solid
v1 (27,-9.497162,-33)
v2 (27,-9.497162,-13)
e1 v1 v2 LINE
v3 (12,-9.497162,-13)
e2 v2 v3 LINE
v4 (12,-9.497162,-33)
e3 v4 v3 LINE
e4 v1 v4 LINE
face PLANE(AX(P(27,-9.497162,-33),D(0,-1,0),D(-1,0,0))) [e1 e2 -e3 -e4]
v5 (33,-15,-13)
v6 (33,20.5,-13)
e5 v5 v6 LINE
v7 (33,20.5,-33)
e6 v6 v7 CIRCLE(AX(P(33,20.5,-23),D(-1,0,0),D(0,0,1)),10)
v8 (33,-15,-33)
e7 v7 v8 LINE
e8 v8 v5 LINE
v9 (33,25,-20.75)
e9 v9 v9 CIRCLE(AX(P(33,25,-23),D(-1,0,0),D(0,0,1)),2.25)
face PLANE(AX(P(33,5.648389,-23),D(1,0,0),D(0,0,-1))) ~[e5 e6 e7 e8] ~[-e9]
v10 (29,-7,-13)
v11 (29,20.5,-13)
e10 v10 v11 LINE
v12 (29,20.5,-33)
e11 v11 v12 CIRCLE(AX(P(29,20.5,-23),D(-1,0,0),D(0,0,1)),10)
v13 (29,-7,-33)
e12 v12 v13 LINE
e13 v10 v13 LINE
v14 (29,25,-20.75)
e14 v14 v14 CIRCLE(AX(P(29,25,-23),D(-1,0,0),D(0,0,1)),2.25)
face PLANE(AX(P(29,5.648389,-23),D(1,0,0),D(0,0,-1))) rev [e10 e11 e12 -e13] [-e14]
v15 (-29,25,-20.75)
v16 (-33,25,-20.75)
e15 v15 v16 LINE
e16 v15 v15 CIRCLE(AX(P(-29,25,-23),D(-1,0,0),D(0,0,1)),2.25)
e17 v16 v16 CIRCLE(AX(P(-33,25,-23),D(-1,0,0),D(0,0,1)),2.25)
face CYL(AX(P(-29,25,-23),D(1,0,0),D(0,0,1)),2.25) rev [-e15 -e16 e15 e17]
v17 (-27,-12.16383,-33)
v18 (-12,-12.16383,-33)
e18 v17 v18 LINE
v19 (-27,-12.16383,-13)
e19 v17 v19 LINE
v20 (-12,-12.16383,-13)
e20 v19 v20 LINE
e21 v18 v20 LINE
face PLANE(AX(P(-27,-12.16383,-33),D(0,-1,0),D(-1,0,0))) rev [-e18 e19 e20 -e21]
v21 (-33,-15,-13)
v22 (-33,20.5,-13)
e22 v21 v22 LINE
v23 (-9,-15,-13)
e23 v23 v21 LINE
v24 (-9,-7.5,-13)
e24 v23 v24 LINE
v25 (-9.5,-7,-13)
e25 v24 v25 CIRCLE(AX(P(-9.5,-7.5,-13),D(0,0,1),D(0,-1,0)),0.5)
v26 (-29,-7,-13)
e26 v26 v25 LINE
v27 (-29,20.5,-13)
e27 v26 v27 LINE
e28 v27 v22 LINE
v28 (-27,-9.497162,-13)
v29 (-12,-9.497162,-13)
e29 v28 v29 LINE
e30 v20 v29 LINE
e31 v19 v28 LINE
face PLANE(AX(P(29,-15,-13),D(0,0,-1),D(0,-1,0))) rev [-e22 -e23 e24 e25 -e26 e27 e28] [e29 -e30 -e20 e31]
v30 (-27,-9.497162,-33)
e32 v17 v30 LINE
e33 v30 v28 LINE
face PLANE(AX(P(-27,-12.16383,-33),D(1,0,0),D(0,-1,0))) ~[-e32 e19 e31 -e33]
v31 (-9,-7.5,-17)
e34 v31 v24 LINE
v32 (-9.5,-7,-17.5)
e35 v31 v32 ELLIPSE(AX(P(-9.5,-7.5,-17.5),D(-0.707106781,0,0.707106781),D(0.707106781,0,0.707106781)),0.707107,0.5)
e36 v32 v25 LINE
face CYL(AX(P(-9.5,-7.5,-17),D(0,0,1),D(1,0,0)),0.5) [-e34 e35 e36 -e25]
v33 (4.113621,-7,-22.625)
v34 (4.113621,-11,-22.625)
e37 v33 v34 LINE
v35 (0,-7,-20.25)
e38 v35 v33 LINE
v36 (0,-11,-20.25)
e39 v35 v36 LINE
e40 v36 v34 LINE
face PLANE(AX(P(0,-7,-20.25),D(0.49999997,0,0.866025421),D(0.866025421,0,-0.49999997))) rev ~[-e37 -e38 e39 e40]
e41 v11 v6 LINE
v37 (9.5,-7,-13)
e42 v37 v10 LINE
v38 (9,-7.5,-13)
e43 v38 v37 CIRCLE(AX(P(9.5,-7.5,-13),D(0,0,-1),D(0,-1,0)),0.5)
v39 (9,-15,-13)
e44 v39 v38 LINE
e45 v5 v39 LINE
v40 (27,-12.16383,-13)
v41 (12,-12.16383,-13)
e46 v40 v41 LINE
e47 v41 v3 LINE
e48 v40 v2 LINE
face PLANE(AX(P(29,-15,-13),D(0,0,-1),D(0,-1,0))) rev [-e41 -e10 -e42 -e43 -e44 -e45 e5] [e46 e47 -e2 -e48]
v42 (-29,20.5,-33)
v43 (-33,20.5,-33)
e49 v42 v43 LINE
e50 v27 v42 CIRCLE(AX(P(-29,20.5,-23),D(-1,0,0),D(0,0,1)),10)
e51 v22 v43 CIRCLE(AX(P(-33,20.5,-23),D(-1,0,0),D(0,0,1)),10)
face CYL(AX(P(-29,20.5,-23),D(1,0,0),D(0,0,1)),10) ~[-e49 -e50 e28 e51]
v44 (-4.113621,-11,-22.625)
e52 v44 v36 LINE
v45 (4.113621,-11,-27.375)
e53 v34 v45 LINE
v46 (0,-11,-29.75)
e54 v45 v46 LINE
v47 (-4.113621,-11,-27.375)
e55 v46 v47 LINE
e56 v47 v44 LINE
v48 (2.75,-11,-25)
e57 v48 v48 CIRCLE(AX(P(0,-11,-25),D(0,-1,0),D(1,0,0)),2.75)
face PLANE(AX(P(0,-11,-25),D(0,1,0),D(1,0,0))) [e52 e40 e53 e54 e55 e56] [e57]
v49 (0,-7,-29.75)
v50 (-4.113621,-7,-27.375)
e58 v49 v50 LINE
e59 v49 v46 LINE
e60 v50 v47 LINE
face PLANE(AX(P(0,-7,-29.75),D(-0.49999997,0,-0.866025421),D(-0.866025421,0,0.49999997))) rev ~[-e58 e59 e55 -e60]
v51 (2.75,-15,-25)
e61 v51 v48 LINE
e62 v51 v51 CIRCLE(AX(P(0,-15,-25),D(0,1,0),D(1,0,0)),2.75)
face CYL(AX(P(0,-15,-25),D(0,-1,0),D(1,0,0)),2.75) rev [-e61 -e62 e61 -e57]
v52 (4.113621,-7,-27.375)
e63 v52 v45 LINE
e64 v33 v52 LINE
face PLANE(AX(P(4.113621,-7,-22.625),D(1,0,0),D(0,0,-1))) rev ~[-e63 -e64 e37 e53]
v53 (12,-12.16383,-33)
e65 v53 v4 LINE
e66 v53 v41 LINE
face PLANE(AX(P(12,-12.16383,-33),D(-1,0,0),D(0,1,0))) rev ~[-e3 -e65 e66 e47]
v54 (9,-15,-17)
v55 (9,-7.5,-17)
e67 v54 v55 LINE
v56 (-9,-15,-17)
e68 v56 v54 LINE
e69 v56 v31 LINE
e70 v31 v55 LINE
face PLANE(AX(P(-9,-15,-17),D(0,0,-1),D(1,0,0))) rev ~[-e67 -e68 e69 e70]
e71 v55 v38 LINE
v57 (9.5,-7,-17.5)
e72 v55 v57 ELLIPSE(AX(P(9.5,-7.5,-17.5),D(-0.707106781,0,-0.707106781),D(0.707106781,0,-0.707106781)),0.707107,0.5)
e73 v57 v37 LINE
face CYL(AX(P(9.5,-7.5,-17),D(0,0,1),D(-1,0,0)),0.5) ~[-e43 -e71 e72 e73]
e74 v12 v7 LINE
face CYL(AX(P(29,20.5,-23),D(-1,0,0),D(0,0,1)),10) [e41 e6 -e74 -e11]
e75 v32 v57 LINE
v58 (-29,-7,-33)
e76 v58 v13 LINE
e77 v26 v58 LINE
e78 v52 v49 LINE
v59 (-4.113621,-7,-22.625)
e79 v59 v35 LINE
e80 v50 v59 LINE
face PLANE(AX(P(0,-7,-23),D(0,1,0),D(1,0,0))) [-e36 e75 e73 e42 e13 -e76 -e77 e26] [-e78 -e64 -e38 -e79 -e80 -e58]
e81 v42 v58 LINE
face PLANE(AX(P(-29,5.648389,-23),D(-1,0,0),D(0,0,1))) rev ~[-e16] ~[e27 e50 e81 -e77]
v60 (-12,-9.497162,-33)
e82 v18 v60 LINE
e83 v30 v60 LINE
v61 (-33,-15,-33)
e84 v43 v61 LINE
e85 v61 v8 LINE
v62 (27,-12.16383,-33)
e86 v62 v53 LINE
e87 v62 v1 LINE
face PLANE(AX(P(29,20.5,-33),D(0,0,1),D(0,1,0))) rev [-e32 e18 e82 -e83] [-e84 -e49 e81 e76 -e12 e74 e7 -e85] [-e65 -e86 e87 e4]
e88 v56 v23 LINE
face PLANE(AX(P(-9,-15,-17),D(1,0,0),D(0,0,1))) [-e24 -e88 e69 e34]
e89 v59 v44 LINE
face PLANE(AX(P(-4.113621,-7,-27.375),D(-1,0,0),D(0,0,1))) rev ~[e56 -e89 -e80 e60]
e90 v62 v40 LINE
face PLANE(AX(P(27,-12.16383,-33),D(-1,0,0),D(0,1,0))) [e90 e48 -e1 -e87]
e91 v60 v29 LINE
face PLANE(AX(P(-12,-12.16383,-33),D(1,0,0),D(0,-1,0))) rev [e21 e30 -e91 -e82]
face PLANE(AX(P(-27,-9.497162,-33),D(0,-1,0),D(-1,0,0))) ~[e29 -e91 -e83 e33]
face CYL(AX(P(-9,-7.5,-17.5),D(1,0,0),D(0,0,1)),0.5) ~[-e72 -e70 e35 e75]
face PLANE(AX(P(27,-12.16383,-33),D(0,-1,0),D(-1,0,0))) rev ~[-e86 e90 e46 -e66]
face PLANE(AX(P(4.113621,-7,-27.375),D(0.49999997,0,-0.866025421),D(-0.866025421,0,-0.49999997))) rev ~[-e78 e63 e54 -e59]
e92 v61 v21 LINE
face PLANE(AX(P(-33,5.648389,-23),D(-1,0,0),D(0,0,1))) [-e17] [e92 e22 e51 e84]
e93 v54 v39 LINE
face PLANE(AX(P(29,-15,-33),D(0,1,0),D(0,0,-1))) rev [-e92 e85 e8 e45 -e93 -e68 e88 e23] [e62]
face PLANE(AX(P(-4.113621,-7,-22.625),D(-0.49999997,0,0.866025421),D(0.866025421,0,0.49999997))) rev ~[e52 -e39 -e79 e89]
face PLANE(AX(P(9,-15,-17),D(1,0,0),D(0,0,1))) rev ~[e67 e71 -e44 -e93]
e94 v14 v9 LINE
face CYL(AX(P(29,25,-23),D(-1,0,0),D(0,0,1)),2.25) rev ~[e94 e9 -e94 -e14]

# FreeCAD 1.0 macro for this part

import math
import FreeCAD as App
import Part
import Sketcher
from FreeCAD import Vector
Q = App.Units.Quantity


def edges_at(feature, points):
    """Names of the edges that pass closest to the given points."""
    edges = feature.Shape.Edges
    near = lambda p: min(range(len(edges)), key=lambda i: edges[i].distToShape(Part.Vertex(*p))[0])
    return sorted({f"Edge{near(p) + 1}" for p in points})


def add_polygon(sketch, points):
    """Adds a closed chain of lines whose ends are joined by coincident constraints."""
    first, n = sketch.GeometryCount, len(points)
    for a, b in zip(points, points[1:] + points[:1]):
        sketch.addGeometry(Part.LineSegment(App.Vector(*a, 0), App.Vector(*b, 0)), False)
    for i in range(n):
        sketch.addConstraint(Sketcher.Constraint("Coincident", first + i, 2, first + (i + 1) % n, 1))

doc = App.newDocument("Part")
params = doc.addObject("Spreadsheet::Sheet", "Params")
for row, (alias, value) in enumerate([
    ("sketch1_diameter", "5.5 mm"),
    ("sketch1_width", "58 mm"),
    ("sketch1_height", "20 mm"),
    ("pad1_length", "8 mm"),
    ("sketch2_radius", "10 mm"),
    ("sketch2_diameter", "4.5 mm"),
    ("sketch2_width", "35.5 mm"),
    ("pad2_length", "4 mm"),
    ("sketch3_height", "4.75 mm"),
    ("pocket1_length", "4 mm"),
    ("sketch4_width", "15 mm"),
    ("pocket2_length", "20 mm"),
    ("sketch5_width", "18 mm"),
    ("sketch5_height", "4 mm"),
    ("pocket3_length", "8 mm"),
    ("fillet_radius", "0.5 mm"),
], start=1):
    params.set(f"A{row}", alias)
    params.set(f"B{row}", "=" + value)
    params.setAlias(f"B{row}", alias)

body = doc.addObject("PartDesign::Body", "Body")

# Sketch on XZ plane
sketch1 = body.newObject("Sketcher::SketchObject", "Sketch")
sketch1.AttachmentSupport = (doc.getObject("XZ_Plane"), [""])
sketch1.MapMode = "FlatFace"
add_polygon(sketch1, [(-29, 10), (-29, -10), (29, -10), (29, 10)])  # lines 0-3
sketch1.addGeometry(Part.Circle(Vector(0, 2, 0), Vector(0, 0, 1), 2.75), False)  # 4
sketch1.addConstraint([
    Sketcher.Constraint("Vertical", 0),
    Sketcher.Constraint("Horizontal", 1),
    Sketcher.Constraint("Vertical", 2),
    Sketcher.Constraint("Horizontal", 3),
    Sketcher.Constraint("Symmetric", 0, 2, 2, 2, -1, 1),
    Sketcher.Constraint("PointOnObject", 4, 3, -2),
    Sketcher.Constraint("Diameter", 4, Q("5.5 mm")),
    Sketcher.Constraint("DistanceX", 1, 1, 1, 2, Q("58 mm")),
    Sketcher.Constraint("DistanceY", 0, 2, 0, 1, Q("20 mm")),
    Sketcher.Constraint("DistanceY", -1, 1, 4, 3, Q("2 mm")),
])
sketch1.setExpression("Constraints[10]", "Params.sketch1_diameter")
sketch1.setExpression("Constraints[11]", "Params.sketch1_width")
sketch1.setExpression("Constraints[12]", "Params.sketch1_height")
pad1 = body.newObject("PartDesign::Pad", "Pad")
pad1.Profile = sketch1
pad1.setExpression("Length", "Params.pad1_length")

# Sketch on YZ plane
sketch2 = body.newObject("Sketcher::SketchObject", "Sketch001")
sketch2.AttachmentSupport = (doc.getObject("YZ_Plane"), [""])
sketch2.MapMode = "FlatFace"
sketch2.AttachmentOffset = App.Placement(Vector(0, 0, -29), App.Rotation())
sketch2.addGeometry([
    Part.LineSegment(Vector(0, 10, 0), Vector(0, -10, 0)),  # 0
    Part.LineSegment(Vector(0, -10, 0), Vector(-35.5, -10, 0)),  # 1
    Part.ArcOfCircle(Part.Circle(Vector(-35.5, 0, 0), Vector(0, 0, 1), 10), math.radians(90), math.radians(270)),  # 2
    Part.LineSegment(Vector(-35.5, 10, 0), Vector(0, 10, 0)),  # 3
    Part.Circle(Vector(-40, 0, 0), Vector(0, 0, 1), 2.25),  # 4
], False)
sketch2.addConstraint([
    Sketcher.Constraint("Coincident", 0, 2, 1, 1),
    Sketcher.Constraint("Tangent", 1, 2, 2, 2),
    Sketcher.Constraint("Tangent", 2, 1, 3, 1),
    Sketcher.Constraint("Coincident", 3, 2, 0, 1),
    Sketcher.Constraint("Vertical", 0),
    Sketcher.Constraint("Horizontal", 1),
    Sketcher.Constraint("Horizontal", 3),
    Sketcher.Constraint("Symmetric", 0, 2, 3, 2, -1, 1),
    Sketcher.Constraint("PointOnObject", 4, 3, -1),
    Sketcher.Constraint("Radius", 2, Q("10 mm")),
    Sketcher.Constraint("Diameter", 4, Q("4.5 mm")),
    Sketcher.Constraint("DistanceX", 1, 2, 1, 1, Q("35.5 mm")),
    Sketcher.Constraint("DistanceX", 4, 3, -1, 1, Q("40 mm")),
])
sketch2.setExpression("Constraints[9]", "Params.sketch2_radius")
sketch2.setExpression("Constraints[10]", "Params.sketch2_diameter")
sketch2.setExpression("Constraints[11]", "Params.sketch2_width")
pad2 = body.newObject("PartDesign::Pad", "Pad001")
pad2.Profile = sketch2
pad2.setExpression("Length", "Params.pad2_length")
pad2.Reversed = True
doc.recompute()

mirrored = body.newObject("PartDesign::Mirrored", "Mirrored")
mirrored.Originals = [pad2]
mirrored.MirrorPlane = (doc.getObject("YZ_Plane"), [""])
body.Tip = mirrored

# Sketch on XZ plane
sketch3 = body.newObject("Sketcher::SketchObject", "Sketch002")
sketch3.AttachmentSupport = (doc.getObject("XZ_Plane"), [""])
sketch3.MapMode = "FlatFace"
sketch3.AttachmentOffset = App.Placement(Vector(0, 0, 8), App.Rotation())
add_polygon(sketch3, [(4.113621, 4.375), (0, 6.75), (-4.113621, 4.375), (-4.113621, -0.375), (0, -2.75), (4.113621, -0.375)])  # lines 0-5
sketch3.addConstraint([
    Sketcher.Constraint("Vertical", 2),
    Sketcher.Constraint("Vertical", 5),
    Sketcher.Constraint("Symmetric", 2, 2, 4, 2, -2),
    Sketcher.Constraint("PointOnObject", 0, 2, -2),
    Sketcher.Constraint("PointOnObject", 3, 2, -2),
    Sketcher.Constraint("Parallel", 0, 3),
    Sketcher.Constraint("Parallel", 1, 4),
    Sketcher.Constraint("Angle", 0, Q("150.000002 deg")),
    Sketcher.Constraint("DistanceY", 2, 2, 2, 1, Q("4.75 mm")),
    Sketcher.Constraint("DistanceY", 3, 2, 0, 2, Q("9.5 mm")),
    Sketcher.Constraint("DistanceY", -1, 1, 0, 2, Q("6.75 mm")),
])
sketch3.setExpression("Constraints[14]", "Params.sketch3_height")
pocket1 = body.newObject("PartDesign::Pocket", "Pocket")
pocket1.Profile = sketch3
pocket1.setExpression("Length", "Params.pocket1_length")

# Sketch on XY plane
sketch4 = body.newObject("Sketcher::SketchObject", "Sketch003")
sketch4.AttachmentSupport = (doc.getObject("XY_Plane"), [""])
sketch4.MapMode = "FlatFace"
sketch4.AttachmentOffset = App.Placement(Vector(0, 0, 10), App.Rotation())
add_polygon(sketch4, [(27, -5.502838), (27, -2.836171), (12, -2.836171), (12, -5.502838)])  # lines 0-3
sketch4.addConstraint([
    Sketcher.Constraint("Vertical", 0),
    Sketcher.Constraint("Horizontal", 1),
    Sketcher.Constraint("Vertical", 2),
    Sketcher.Constraint("Horizontal", 3),
    Sketcher.Constraint("DistanceX", 1, 2, 1, 1, Q("15 mm")),
    Sketcher.Constraint("DistanceX", -1, 1, 0, 2, Q("27 mm")),
    Sketcher.Constraint("DistanceY", 0, 1, 0, 2, Q("2.666667 mm")),
    Sketcher.Constraint("DistanceY", 0, 2, -1, 1, Q("2.836171 mm")),
])
sketch4.setExpression("Constraints[8]", "Params.sketch4_width")
pocket2 = body.newObject("PartDesign::Pocket", "Pocket001")
pocket2.Profile = sketch4
pocket2.setExpression("Length", "Params.pocket2_length")
doc.recompute()

mirrored2 = body.newObject("PartDesign::Mirrored", "Mirrored001")
mirrored2.Originals = [pocket2]
mirrored2.MirrorPlane = (doc.getObject("YZ_Plane"), [""])
body.Tip = mirrored2

# Sketch on XZ plane
sketch5 = body.newObject("Sketcher::SketchObject", "Sketch004")
sketch5.AttachmentSupport = (doc.getObject("XZ_Plane"), [""])
sketch5.MapMode = "FlatFace"
add_polygon(sketch5, [(-9, -10), (-9, -6), (9, -6), (9, -10)])  # lines 0-3
sketch5.addConstraint([
    Sketcher.Constraint("Vertical", 0),
    Sketcher.Constraint("Horizontal", 1),
    Sketcher.Constraint("Vertical", 2),
    Sketcher.Constraint("Horizontal", 3),
    Sketcher.Constraint("DistanceX", 1, 1, 1, 2, Q("18 mm")),
    Sketcher.Constraint("DistanceY", 0, 1, 0, 2, Q("4 mm")),
    Sketcher.Constraint("DistanceX", 0, 2, -1, 1, Q("9 mm")),
    Sketcher.Constraint("DistanceY", 0, 2, -1, 1, Q("6 mm")),
])
sketch5.setExpression("Constraints[8]", "Params.sketch5_width")
sketch5.setExpression("Constraints[9]", "Params.sketch5_height")
pocket3 = body.newObject("PartDesign::Pocket", "Pocket002")
pocket3.Profile = sketch5
pocket3.setExpression("Length", "Params.pocket3_length")
pocket3.Reversed = True
doc.recompute()

fillet = body.newObject("PartDesign::Fillet", "Fillet")
fillet.Base = (pocket3, edges_at(pocket3, [(0, -8, -6), (9, -8, -8), (-9, -8, -8)]))
fillet.setExpression("Radius", "Params.fillet_radius")
body2 = doc.addObject("PartDesign::Body", "Body001")
doc.recompute()

body.Placement = App.Placement(Vector(0, -15, -23), App.Rotation(Vector(1, 0, 0), 180))
boolean = body2.newObject("PartDesign::Boolean", "Boolean")
boolean.Type = "Fuse"
boolean.addObjects([body])

doc.recompute()
